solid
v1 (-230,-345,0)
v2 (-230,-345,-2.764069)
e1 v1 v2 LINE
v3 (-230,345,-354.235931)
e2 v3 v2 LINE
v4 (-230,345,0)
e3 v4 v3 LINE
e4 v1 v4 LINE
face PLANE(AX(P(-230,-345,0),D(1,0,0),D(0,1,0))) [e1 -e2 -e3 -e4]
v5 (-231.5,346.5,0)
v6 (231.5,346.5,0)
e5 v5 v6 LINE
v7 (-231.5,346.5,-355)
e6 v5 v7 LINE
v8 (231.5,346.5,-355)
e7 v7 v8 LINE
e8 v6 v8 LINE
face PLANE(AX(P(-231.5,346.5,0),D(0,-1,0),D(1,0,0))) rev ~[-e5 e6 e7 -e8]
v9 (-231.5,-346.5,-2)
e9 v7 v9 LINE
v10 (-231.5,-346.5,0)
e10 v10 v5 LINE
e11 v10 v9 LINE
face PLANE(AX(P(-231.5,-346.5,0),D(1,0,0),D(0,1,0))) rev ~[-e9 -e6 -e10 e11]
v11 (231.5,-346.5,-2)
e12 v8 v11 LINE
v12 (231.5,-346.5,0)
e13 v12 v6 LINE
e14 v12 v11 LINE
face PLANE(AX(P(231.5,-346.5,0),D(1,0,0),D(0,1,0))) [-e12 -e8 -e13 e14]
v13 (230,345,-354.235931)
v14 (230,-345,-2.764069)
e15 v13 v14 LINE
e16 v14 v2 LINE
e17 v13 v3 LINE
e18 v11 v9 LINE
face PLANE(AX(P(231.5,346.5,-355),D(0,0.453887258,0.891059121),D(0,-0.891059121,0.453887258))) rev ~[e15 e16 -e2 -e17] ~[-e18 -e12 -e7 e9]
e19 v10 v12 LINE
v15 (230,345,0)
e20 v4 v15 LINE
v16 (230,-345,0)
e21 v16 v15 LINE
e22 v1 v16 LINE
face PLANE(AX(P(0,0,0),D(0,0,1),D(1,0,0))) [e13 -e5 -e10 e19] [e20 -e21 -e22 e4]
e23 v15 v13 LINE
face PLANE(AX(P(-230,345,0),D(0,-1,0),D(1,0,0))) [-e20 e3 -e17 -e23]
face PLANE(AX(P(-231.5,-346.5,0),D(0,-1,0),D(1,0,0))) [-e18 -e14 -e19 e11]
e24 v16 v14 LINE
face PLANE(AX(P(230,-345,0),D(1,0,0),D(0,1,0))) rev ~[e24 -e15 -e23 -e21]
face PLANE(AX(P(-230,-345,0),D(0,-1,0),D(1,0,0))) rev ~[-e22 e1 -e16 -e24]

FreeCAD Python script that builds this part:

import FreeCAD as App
import Part
import Sketcher
from FreeCAD import Vector
Q = App.Units.Quantity

doc = App.newDocument("Part")
body = doc.addObject("PartDesign::Body", "Body")

sketch1 = body.newObject("Sketcher::SketchObject", "Sketch")
sketch1.AttachmentSupport = (doc.getObject("XY_Plane"), [""])
sketch1.MapMode = "FlatFace"
sketch1.addGeometry(Part.LineSegment(Vector(-232, 346, 0), Vector(-232, -346, 0)), False)
sketch1.addGeometry(Part.LineSegment(Vector(-232, -346, 0), Vector(232, -346, 0)), False)
sketch1.addGeometry(Part.LineSegment(Vector(232, -346, 0), Vector(232, 346, 0)), False)
sketch1.addGeometry(Part.LineSegment(Vector(232, 346, 0), Vector(-232, 346, 0)), False)
sketch1.addGeometry(Part.LineSegment(Vector(230, -345, 0), Vector(-230, -345, 0)), False)
sketch1.addGeometry(Part.LineSegment(Vector(-230, -345, 0), Vector(-230, 345, 0)), False)
sketch1.addGeometry(Part.LineSegment(Vector(-230, 345, 0), Vector(230, 345, 0)), False)
sketch1.addGeometry(Part.LineSegment(Vector(230, 345, 0), Vector(230, -345, 0)), False)
sketch1.addConstraint(Sketcher.Constraint("Coincident", 0, 2, 1, 1))
sketch1.addConstraint(Sketcher.Constraint("Coincident", 1, 2, 2, 1))
sketch1.addConstraint(Sketcher.Constraint("Coincident", 2, 2, 3, 1))
sketch1.addConstraint(Sketcher.Constraint("Coincident", 3, 2, 0, 1))
sketch1.addConstraint(Sketcher.Constraint("Coincident", 4, 2, 5, 1))
sketch1.addConstraint(Sketcher.Constraint("Coincident", 5, 2, 6, 1))
sketch1.addConstraint(Sketcher.Constraint("Coincident", 6, 2, 7, 1))
sketch1.addConstraint(Sketcher.Constraint("Coincident", 7, 2, 4, 1))
sketch1.addConstraint(Sketcher.Constraint("Vertical", 0))
sketch1.addConstraint(Sketcher.Constraint("Horizontal", 1))
sketch1.addConstraint(Sketcher.Constraint("Vertical", 2))
sketch1.addConstraint(Sketcher.Constraint("Horizontal", 3))
sketch1.addConstraint(Sketcher.Constraint("Horizontal", 4))
sketch1.addConstraint(Sketcher.Constraint("Vertical", 5))
sketch1.addConstraint(Sketcher.Constraint("Horizontal", 6))
sketch1.addConstraint(Sketcher.Constraint("Vertical", 7))
sketch1.addConstraint(Sketcher.Constraint("Symmetric", 0, 2, 2, 2, -1, 1))
sketch1.addConstraint(Sketcher.Constraint("Symmetric", 4, 2, 6, 2, -1, 1))
sketch1.addConstraint(Sketcher.Constraint("DistanceX", 1, 1, 1, 2, Q("463 mm")))
sketch1.addConstraint(Sketcher.Constraint("DistanceX", 4, 2, 4, 1, Q("460 mm")))
sketch1.addConstraint(Sketcher.Constraint("DistanceY", 0, 2, 0, 1, Q("693 mm")))
sketch1.addConstraint(Sketcher.Constraint("DistanceY", 5, 1, 5, 2, Q("690 mm")))
pad1 = body.newObject("PartDesign::Pad", "Pad")
pad1.Profile = sketch1
pad1.Length = 355
pad1.Reversed = True

sketch2 = body.newObject("Sketcher::SketchObject", "Sketch001")
sketch2.AttachmentSupport = (doc.getObject("YZ_Plane"), [""])
sketch2.MapMode = "FlatFace"
sketch2.AttachmentOffset = App.Placement(Vector(0, 0, 231.5), App.Rotation())
sketch2.addGeometry(Part.LineSegment(Vector(346, -355, 0), Vector(-346, -2, 0)), False)
sketch2.addGeometry(Part.LineSegment(Vector(-346, -2, 0), Vector(-346, -355, 0)), False)
sketch2.addGeometry(Part.LineSegment(Vector(-346, -355, 0), Vector(346, -355, 0)), False)
sketch2.addConstraint(Sketcher.Constraint("Coincident", 0, 2, 1, 1))
sketch2.addConstraint(Sketcher.Constraint("Coincident", 1, 2, 2, 1))
sketch2.addConstraint(Sketcher.Constraint("Coincident", 2, 2, 0, 1))
sketch2.addConstraint(Sketcher.Constraint("Vertical", 1))
sketch2.addConstraint(Sketcher.Constraint("Horizontal", 2))
sketch2.addConstraint(Sketcher.Constraint("DistanceX", 2, 1, 2, 2, Q("693 mm")))
sketch2.addConstraint(Sketcher.Constraint("DistanceY", 1, 2, 1, 1, Q("353 mm")))
sketch2.addConstraint(Sketcher.Constraint("DistanceY", 0, 2, -1, 1, Q("2 mm")))
sketch2.addConstraint(Sketcher.Constraint("DistanceX", 0, 2, -1, 1, Q("346.5 mm")))
pocket1 = body.newObject("PartDesign::Pocket", "Pocket")
pocket1.Profile = sketch2
pocket1.Type = "ThroughAll"

doc.recompute()
